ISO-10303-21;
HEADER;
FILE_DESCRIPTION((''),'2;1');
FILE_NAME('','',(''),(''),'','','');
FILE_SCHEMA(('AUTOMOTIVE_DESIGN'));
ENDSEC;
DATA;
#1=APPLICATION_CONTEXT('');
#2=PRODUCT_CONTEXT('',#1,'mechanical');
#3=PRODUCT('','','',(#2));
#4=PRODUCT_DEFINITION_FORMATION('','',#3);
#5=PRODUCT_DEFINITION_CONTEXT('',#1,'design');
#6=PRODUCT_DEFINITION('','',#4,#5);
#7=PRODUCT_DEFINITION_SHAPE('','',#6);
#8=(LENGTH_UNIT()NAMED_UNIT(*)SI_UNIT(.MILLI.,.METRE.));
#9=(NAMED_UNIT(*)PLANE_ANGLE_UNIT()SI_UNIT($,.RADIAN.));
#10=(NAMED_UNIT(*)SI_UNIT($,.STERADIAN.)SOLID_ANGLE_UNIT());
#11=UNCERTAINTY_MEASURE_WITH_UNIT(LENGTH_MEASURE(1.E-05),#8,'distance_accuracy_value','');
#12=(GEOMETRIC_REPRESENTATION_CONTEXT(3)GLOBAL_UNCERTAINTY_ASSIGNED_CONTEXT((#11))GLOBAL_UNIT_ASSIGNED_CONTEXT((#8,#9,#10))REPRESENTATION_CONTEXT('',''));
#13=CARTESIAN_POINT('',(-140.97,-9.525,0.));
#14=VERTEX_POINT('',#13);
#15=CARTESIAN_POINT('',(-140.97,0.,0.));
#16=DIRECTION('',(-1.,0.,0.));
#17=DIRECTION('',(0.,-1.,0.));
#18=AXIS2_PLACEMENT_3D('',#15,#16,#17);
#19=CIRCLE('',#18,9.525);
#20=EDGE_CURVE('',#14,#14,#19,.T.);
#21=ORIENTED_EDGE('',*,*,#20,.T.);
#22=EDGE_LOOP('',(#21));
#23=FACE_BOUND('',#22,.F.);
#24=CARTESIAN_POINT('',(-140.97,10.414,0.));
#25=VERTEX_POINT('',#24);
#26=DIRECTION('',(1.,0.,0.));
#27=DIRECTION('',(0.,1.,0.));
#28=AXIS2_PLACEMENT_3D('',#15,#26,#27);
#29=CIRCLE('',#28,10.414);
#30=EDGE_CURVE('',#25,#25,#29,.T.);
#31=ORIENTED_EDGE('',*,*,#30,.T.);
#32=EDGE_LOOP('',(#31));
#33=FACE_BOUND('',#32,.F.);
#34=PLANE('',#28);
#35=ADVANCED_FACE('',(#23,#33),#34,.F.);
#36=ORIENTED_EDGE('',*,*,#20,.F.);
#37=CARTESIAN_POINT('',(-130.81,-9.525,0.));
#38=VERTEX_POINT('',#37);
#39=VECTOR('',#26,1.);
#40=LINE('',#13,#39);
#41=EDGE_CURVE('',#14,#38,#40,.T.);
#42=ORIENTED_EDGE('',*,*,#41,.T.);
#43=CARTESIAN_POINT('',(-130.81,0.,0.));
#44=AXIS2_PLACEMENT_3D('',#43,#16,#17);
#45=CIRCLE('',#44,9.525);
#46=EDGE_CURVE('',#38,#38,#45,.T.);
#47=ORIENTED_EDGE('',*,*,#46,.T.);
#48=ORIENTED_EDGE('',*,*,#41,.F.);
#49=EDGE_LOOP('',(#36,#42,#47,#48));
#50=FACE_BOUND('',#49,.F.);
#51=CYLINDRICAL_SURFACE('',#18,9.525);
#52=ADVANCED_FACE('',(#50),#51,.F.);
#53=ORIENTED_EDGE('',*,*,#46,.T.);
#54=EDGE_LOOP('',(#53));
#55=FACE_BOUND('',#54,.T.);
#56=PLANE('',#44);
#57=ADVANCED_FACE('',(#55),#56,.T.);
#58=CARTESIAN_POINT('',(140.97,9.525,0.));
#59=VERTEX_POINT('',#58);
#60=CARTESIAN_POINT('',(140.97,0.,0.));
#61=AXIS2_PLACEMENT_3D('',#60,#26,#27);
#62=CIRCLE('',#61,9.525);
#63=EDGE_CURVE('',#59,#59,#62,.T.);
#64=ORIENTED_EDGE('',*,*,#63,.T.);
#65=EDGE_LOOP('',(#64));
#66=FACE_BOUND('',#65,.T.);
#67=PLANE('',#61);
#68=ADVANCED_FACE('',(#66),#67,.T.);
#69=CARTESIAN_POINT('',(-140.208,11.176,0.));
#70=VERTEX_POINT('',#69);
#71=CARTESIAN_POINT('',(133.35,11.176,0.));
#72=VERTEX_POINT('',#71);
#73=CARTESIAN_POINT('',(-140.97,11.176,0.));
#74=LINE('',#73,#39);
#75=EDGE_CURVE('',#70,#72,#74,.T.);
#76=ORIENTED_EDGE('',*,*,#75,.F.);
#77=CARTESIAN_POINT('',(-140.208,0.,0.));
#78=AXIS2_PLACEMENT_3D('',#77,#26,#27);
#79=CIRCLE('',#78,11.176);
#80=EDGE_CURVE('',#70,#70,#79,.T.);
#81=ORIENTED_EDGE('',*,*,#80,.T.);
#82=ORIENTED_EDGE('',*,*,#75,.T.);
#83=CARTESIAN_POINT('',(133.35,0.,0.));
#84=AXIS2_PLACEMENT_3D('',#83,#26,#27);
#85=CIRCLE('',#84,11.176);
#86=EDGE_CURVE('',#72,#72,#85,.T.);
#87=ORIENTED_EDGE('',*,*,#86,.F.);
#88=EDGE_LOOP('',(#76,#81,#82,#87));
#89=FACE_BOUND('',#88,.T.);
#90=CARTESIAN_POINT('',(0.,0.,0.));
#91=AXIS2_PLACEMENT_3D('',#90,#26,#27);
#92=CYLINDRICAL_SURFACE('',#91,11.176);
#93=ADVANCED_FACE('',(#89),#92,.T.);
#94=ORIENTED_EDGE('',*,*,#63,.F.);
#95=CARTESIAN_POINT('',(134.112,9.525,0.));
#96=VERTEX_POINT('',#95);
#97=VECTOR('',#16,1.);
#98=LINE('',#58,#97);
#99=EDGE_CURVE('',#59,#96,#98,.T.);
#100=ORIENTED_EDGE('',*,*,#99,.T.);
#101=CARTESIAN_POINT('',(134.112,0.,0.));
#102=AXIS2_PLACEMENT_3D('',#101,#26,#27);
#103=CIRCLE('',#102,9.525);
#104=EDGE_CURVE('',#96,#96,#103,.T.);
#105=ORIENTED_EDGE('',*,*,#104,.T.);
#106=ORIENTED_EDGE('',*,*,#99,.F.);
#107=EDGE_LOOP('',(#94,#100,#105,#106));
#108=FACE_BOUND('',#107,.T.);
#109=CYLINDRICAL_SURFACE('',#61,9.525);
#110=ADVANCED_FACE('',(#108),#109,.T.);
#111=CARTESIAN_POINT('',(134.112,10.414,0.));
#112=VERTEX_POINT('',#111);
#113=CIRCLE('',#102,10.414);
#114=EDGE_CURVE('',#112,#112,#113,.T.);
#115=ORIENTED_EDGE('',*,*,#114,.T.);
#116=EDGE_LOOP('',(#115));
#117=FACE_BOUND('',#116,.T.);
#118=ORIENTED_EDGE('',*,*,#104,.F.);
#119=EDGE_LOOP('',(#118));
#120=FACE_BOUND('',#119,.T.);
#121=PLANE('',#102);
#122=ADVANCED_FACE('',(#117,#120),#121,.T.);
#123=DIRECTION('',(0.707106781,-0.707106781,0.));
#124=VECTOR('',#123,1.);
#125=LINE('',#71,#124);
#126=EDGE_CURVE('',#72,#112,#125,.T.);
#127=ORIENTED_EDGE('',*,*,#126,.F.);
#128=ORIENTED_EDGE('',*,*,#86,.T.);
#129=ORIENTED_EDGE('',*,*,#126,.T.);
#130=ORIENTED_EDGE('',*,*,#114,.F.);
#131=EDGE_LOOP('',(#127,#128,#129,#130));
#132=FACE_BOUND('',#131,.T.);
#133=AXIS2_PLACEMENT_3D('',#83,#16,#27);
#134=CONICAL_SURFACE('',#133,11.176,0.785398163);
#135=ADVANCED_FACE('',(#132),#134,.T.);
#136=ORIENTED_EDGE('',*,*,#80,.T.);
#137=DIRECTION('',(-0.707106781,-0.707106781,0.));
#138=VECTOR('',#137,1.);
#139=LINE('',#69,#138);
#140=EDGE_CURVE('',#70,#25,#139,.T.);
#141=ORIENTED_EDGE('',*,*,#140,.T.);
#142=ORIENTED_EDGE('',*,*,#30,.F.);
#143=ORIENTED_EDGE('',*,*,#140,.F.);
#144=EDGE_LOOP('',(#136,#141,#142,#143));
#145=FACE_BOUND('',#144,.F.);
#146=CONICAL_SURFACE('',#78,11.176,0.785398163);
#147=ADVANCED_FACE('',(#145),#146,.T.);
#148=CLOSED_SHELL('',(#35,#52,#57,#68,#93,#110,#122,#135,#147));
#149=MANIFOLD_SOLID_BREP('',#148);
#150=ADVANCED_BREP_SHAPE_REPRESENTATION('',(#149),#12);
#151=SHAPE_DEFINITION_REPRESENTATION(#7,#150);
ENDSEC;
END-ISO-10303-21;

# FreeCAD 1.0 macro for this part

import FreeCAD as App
import Part
import Sketcher
Q = App.Units.Quantity


def edges_at(feature, points):
    """Names of the edges that pass closest to the given points."""
    edges = feature.Shape.Edges
    near = lambda p: min(range(len(edges)), key=lambda i: edges[i].distToShape(Part.Vertex(*p))[0])
    return sorted({f"Edge{near(p) + 1}" for p in points})

doc = App.newDocument("Part")
params = doc.addObject("Spreadsheet::Sheet", "Params")
for row, (alias, value) in enumerate([
    ("sketch1_diameter", "0.88 in"),
    ("pad1_length", "11.1 in"),
    ("sketch2_diameter", "0.88 in"),
    ("sketch2_diameter2", "0.75 in"),
    ("pocket1_length", "0.27 in"),
    ("chamfer_size", "0.03 in"),
    ("sketch3_diameter", "0.75 in"),
    ("pocket2_length", "0.4 in"),
], start=1):
    params.set(f"A{row}", alias)
    params.set(f"B{row}", "=" + value)
    params.setAlias(f"B{row}", alias)

body = doc.addObject("PartDesign::Body", "Body")

# Sketch on YZ plane
sketch1 = body.newObject("Sketcher::SketchObject", "Sketch")
sketch1.AttachmentSupport = (doc.getObject("YZ_Plane"), [""])
sketch1.MapMode = "FlatFace"
sketch1.addGeometry(Part.Circle(App.Vector(0, 0, 0), App.Vector(0, 0, 1), 11.176), False)
sketch1.addConstraint(Sketcher.Constraint("Coincident", 0, 3, -1, 1))
sketch1.addConstraint(Sketcher.Constraint("Diameter", 0, Q("0.88 in")))
sketch1.setExpression("Constraints[1]", "Params.sketch1_diameter")
pad1 = body.newObject("PartDesign::Pad", "Pad")
pad1.Profile = sketch1
pad1.setExpression("Length", "Params.pad1_length")
pad1.Midplane = True

# Sketch on YZ plane
sketch2 = body.newObject("Sketcher::SketchObject", "Sketch001")
sketch2.AttachmentSupport = (doc.getObject("YZ_Plane"), [""])
sketch2.MapMode = "FlatFace"
sketch2.AttachmentOffset = App.Placement(App.Vector(0, 0, 5.55 * 25.4), App.Rotation())
sketch2.addGeometry(Part.Circle(App.Vector(0, 0, 0), App.Vector(0, 0, 1), 11.176), False)
sketch2.addGeometry(Part.Circle(App.Vector(0, 0, 0), App.Vector(0, 0, 1), 9.525), False)
sketch2.addConstraint(Sketcher.Constraint("Coincident", 0, 3, -1, 1))
sketch2.addConstraint(Sketcher.Constraint("Coincident", 1, 3, -1, 1))
sketch2.addConstraint(Sketcher.Constraint("Diameter", 0, Q("0.88 in")))
sketch2.addConstraint(Sketcher.Constraint("Diameter", 1, Q("0.75 in")))
sketch2.setExpression("Constraints[2]", "Params.sketch2_diameter")
sketch2.setExpression("Constraints[3]", "Params.sketch2_diameter2")
pocket1 = body.newObject("PartDesign::Pocket", "Pocket")
pocket1.Profile = sketch2
pocket1.setExpression("Length", "Params.pocket1_length")
doc.recompute()

chamfer = body.newObject("PartDesign::Chamfer", "Chamfer")
chamfer.Base = (pocket1, edges_at(pocket1, [(-140.97, -11.176, 0), (134.112, -11.176, 0)]))
chamfer.setExpression("Size", "Params.chamfer_size")

# Sketch on YZ plane
sketch3 = body.newObject("Sketcher::SketchObject", "Sketch002")
sketch3.AttachmentSupport = (doc.getObject("YZ_Plane"), [""])
sketch3.MapMode = "FlatFace"
sketch3.AttachmentOffset = App.Placement(App.Vector(0, 0, -5.55 * 25.4), App.Rotation())
sketch3.addGeometry(Part.Circle(App.Vector(0, 0, 0), App.Vector(0, 0, 1), 9.525), False)
sketch3.addConstraint(Sketcher.Constraint("Coincident", 0, 3, -1, 1))
sketch3.addConstraint(Sketcher.Constraint("Diameter", 0, Q("0.75 in")))
sketch3.setExpression("Constraints[1]", "Params.sketch3_diameter")
pocket2 = body.newObject("PartDesign::Pocket", "Pocket001")
pocket2.Profile = sketch3
pocket2.setExpression("Length", "Params.pocket2_length")
pocket2.Reversed = True

doc.recompute()
